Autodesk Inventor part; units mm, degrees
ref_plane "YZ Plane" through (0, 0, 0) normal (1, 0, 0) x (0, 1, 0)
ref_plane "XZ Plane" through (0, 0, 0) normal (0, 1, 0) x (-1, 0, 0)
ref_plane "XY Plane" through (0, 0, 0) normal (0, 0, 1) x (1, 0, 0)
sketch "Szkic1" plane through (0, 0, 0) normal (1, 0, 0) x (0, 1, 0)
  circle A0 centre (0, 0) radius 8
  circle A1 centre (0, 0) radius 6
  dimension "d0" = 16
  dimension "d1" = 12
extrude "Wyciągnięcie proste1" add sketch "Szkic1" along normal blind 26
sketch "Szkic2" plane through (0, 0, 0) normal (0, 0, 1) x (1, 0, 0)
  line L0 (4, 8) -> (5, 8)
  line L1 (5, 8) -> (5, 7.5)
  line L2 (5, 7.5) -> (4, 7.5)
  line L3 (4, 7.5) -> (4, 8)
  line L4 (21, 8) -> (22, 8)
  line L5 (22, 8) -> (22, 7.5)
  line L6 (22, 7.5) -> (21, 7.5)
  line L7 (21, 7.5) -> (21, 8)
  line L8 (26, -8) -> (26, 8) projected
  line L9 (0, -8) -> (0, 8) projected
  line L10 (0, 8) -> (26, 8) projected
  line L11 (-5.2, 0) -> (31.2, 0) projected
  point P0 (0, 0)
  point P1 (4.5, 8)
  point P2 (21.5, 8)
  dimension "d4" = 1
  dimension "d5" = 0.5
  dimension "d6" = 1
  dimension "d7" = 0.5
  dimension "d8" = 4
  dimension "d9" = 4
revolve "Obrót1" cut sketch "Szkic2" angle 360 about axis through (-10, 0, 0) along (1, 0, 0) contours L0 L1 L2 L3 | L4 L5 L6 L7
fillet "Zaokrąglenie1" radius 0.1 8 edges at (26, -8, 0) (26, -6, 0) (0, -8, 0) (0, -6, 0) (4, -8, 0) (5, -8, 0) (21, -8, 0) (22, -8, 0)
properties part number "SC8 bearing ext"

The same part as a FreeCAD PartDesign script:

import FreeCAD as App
import Part
import Sketcher
from FreeCAD import Vector
Q = App.Units.Quantity


def edges_at(feature, points):
    """Names of the edges that pass closest to the given points."""
    edges = feature.Shape.Edges
    near = lambda p: min(range(len(edges)), key=lambda i: edges[i].distToShape(Part.Vertex(*p))[0])
    return sorted({f"Edge{near(p) + 1}" for p in points})


def add_polygon(sketch, points):
    """Adds a closed chain of lines whose ends are joined by coincident constraints."""
    first, n = sketch.GeometryCount, len(points)
    for a, b in zip(points, points[1:] + points[:1]):
        sketch.addGeometry(Part.LineSegment(App.Vector(*a, 0), App.Vector(*b, 0)), False)
    for i in range(n):
        sketch.addConstraint(Sketcher.Constraint("Coincident", first + i, 2, first + (i + 1) % n, 1))

doc = App.newDocument("Part")
body = doc.addObject("PartDesign::Body", "Body")

sketch1 = doc.addObject("Sketcher::SketchObject", "Sketch")
body.addObject(sketch1)
sketch1.AttachmentSupport = (doc.YZ_Plane, [""])
sketch1.MapMode = "FlatFace"
sketch1.addGeometry([
    Part.Circle(Vector(0, 0, 0), Vector(0, 0, 1), 8),
    Part.Circle(Vector(0, 0, 0), Vector(0, 0, 1), 6),
], False)
sketch1.addConstraint([
    Sketcher.Constraint("Coincident", 0, 3, -1, 1),
    Sketcher.Constraint("Coincident", 1, 3, -1, 1),
    Sketcher.Constraint("Diameter", 0, Q("16 mm")),
    Sketcher.Constraint("Diameter", 1, Q("12 mm")),
])
pad1 = doc.addObject("PartDesign::Pad", "Pad")
body.addObject(pad1)
pad1.Profile = sketch1
pad1.Length = 26

sketch2 = doc.addObject("Sketcher::SketchObject", "Sketch001")
body.addObject(sketch2)
sketch2.AttachmentSupport = (doc.XY_Plane, [""])
sketch2.MapMode = "FlatFace"
add_polygon(sketch2, [(5, 8), (4, 8), (4, 7.5), (5, 7.5)])
add_polygon(sketch2, [(22, 8), (21, 8), (21, 7.5), (22, 7.5)])
sketch2.addConstraint([
    Sketcher.Constraint("Horizontal", 0),
    Sketcher.Constraint("Vertical", 1),
    Sketcher.Constraint("Horizontal", 2),
    Sketcher.Constraint("Vertical", 3),
    Sketcher.Constraint("Horizontal", 4),
    Sketcher.Constraint("Vertical", 5),
    Sketcher.Constraint("Horizontal", 6),
    Sketcher.Constraint("Vertical", 7),
    Sketcher.Constraint("Horizontal", 3, 2, 4, 2),
    Sketcher.Constraint("Horizontal", 2, 2, 5, 2),
    Sketcher.Constraint("Equal", 2, 4),
    Sketcher.Constraint("DistanceX", 0, 2, 0, 1, Q("1 mm")),
    Sketcher.Constraint("DistanceY", 1, 2, 1, 1, Q("0.5 mm")),
    Sketcher.Constraint("DistanceX", -1, 1, 0, 2, Q("4 mm")),
    Sketcher.Constraint("DistanceY", -1, 1, 0, 2, Q("8 mm")),
    Sketcher.Constraint("DistanceX", -1, 1, 4, 2, Q("21 mm")),
])
groove = doc.addObject("PartDesign::Groove", "Groove")
body.addObject(groove)
groove.Profile = sketch2
groove.ReferenceAxis = (sketch2, ["H_Axis"])
groove.Angle = 360
doc.recompute()

fillet = doc.addObject("PartDesign::Fillet", "Fillet")
body.addObject(fillet)
fillet.Base = (groove, edges_at(groove, [
    (26, -8, 0),
    (26, -6, 0),
    (0, -8, 0),
    (0, -6, 0),
    (4, -8, 0),
    (5, -8, 0),
    (21, -8, 0),
    (22, -8, 0),
]))
fillet.Radius = 0.1

doc.recompute()
